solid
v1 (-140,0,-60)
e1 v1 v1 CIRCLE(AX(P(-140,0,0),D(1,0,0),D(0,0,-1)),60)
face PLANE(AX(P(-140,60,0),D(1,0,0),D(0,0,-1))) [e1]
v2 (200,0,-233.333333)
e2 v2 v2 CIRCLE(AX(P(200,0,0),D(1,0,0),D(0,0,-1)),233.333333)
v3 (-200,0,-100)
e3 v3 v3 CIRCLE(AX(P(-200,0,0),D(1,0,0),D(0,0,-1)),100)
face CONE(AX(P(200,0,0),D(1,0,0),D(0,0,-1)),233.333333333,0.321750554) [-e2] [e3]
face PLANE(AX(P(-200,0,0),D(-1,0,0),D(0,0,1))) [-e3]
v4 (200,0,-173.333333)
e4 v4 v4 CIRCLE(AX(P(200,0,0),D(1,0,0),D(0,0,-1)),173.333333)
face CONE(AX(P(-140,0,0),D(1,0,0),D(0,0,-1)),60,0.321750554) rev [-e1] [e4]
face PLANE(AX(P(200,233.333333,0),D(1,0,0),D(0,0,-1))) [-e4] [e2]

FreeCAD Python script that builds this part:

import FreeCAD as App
import Part
import Sketcher

V = App.Vector
Q = App.Units.Quantity


def add_polygon(sketch, points):
    """Adds a closed chain of lines whose ends are joined by coincident constraints."""
    first, n = sketch.GeometryCount, len(points)
    for a, b in zip(points, points[1:] + points[:1]):
        sketch.addGeometry(Part.LineSegment(App.Vector(*a, 0), App.Vector(*b, 0)), False)
    for i in range(n):
        sketch.addConstraint(Sketcher.Constraint("Coincident", first + i, 2, first + (i + 1) % n, 1))

doc = App.newDocument("Part")
body = doc.addObject("PartDesign::Body", "Body")

# Sketch on XY plane
sketch1 = body.newObject("Sketcher::SketchObject", "Sketch")
sketch1.AttachmentSupport = (doc.getObject("XY_Plane"), [""])
sketch1.MapMode = "FlatFace"
add_polygon(sketch1, [(-200, 0), (-140, 0), (-140, 60), (200, 173), (200, 233), (-200, 100)])  # lines 0-5
sketch1.addConstraint([
    Sketcher.Constraint("Horizontal", 0),
    Sketcher.Constraint("Vertical", 1),
    Sketcher.Constraint("Vertical", 3),
    Sketcher.Constraint("Vertical", 5),
    Sketcher.Constraint("PointOnObject", 0, 2, -1),
    Sketcher.Constraint("Parallel", 2, 4),
    Sketcher.Constraint("Equal", 0, 1),
    Sketcher.Constraint("Equal", 1, 3),
    Sketcher.Constraint("DistanceX", 0, 1, 0, 2, Q("60 mm")),
    Sketcher.Constraint("DistanceY", 5, 2, 5, 1, Q("100 mm")),
    Sketcher.Constraint("DistanceX", 0, 2, -1, 1, Q("140 mm")),
    Sketcher.Constraint("DistanceX", -1, 1, 2, 2, Q("200 mm")),
])
revolution = body.newObject("PartDesign::Revolution", "Revolution")
revolution.Profile = sketch1
revolution.ReferenceAxis = (sketch1, ["H_Axis"])
revolution.Angle = 360

doc.recompute()
